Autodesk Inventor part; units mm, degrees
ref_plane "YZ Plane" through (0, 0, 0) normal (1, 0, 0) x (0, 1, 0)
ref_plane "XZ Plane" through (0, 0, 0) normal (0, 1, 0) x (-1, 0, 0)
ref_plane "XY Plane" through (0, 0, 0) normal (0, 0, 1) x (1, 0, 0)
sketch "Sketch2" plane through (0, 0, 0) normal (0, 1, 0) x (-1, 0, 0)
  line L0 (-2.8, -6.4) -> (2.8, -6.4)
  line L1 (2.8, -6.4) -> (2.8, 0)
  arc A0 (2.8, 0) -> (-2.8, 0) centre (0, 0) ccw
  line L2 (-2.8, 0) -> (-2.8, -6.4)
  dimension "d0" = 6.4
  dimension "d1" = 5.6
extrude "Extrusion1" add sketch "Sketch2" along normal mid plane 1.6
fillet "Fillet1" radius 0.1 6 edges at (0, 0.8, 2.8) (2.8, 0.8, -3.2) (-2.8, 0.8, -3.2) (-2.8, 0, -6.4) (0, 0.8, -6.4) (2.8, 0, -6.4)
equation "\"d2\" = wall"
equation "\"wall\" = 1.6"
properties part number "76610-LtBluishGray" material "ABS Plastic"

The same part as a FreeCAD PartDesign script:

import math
import FreeCAD as App
import Part
import Sketcher
from FreeCAD import Vector
Q = App.Units.Quantity


def edges_at(feature, points):
    """Names of the edges that pass closest to the given points."""
    edges = feature.Shape.Edges
    near = lambda p: min(range(len(edges)), key=lambda i: edges[i].distToShape(Part.Vertex(*p))[0])
    return sorted({f"Edge{near(p) + 1}" for p in points})

doc = App.newDocument("Part")
body = doc.addObject("PartDesign::Body", "Body")

# Sketch on XZ plane
sketch1 = doc.addObject("Sketcher::SketchObject", "Sketch")
body.addObject(sketch1)
sketch1.AttachmentSupport = (doc.XZ_Plane, [""])
sketch1.MapMode = "FlatFace"
sketch1.addGeometry([
    Part.LineSegment(Vector(2.8, 0, 0), Vector(2.8, -6.4, 0)),
    Part.LineSegment(Vector(2.8, -6.4, 0), Vector(-2.8, -6.4, 0)),
    Part.LineSegment(Vector(-2.8, -6.4, 0), Vector(-2.8, 0, 0)),
    Part.ArcOfCircle(Part.Circle(Vector(0, 0, 0), Vector(0, 0, 1), 2.8), math.radians(0), math.radians(180)),
], False)
sketch1.addConstraint([
    Sketcher.Constraint("Coincident", 0, 2, 1, 1),
    Sketcher.Constraint("Coincident", 1, 2, 2, 1),
    Sketcher.Constraint("Tangent", 2, 2, 3, 2),
    Sketcher.Constraint("Tangent", 3, 1, 0, 1),
    Sketcher.Constraint("Vertical", 0),
    Sketcher.Constraint("Horizontal", 1),
    Sketcher.Constraint("Vertical", 2),
    Sketcher.Constraint("Coincident", 3, 3, -1, 1),
    Sketcher.Constraint("Radius", 3, Q("2.8 mm")),
    Sketcher.Constraint("DistanceY", 0, 2, 0, 1, Q("6.4 mm")),
])
pad1 = doc.addObject("PartDesign::Pad", "Pad")
body.addObject(pad1)
pad1.Profile = sketch1
pad1.Length = 1.6
pad1.Midplane = True
doc.recompute()

fillet = doc.addObject("PartDesign::Fillet", "Fillet")
body.addObject(fillet)
fillet.Base = (pad1, edges_at(pad1, [
    (0, 0.8, 2.8),
    (2.8, 0.8, -3.2),
    (-2.8, 0.8, -3.2),
    (-2.8, 0, -6.4),
    (0, 0.8, -6.4),
    (2.8, 0, -6.4),
]))
fillet.Radius = 0.1

doc.recompute()
